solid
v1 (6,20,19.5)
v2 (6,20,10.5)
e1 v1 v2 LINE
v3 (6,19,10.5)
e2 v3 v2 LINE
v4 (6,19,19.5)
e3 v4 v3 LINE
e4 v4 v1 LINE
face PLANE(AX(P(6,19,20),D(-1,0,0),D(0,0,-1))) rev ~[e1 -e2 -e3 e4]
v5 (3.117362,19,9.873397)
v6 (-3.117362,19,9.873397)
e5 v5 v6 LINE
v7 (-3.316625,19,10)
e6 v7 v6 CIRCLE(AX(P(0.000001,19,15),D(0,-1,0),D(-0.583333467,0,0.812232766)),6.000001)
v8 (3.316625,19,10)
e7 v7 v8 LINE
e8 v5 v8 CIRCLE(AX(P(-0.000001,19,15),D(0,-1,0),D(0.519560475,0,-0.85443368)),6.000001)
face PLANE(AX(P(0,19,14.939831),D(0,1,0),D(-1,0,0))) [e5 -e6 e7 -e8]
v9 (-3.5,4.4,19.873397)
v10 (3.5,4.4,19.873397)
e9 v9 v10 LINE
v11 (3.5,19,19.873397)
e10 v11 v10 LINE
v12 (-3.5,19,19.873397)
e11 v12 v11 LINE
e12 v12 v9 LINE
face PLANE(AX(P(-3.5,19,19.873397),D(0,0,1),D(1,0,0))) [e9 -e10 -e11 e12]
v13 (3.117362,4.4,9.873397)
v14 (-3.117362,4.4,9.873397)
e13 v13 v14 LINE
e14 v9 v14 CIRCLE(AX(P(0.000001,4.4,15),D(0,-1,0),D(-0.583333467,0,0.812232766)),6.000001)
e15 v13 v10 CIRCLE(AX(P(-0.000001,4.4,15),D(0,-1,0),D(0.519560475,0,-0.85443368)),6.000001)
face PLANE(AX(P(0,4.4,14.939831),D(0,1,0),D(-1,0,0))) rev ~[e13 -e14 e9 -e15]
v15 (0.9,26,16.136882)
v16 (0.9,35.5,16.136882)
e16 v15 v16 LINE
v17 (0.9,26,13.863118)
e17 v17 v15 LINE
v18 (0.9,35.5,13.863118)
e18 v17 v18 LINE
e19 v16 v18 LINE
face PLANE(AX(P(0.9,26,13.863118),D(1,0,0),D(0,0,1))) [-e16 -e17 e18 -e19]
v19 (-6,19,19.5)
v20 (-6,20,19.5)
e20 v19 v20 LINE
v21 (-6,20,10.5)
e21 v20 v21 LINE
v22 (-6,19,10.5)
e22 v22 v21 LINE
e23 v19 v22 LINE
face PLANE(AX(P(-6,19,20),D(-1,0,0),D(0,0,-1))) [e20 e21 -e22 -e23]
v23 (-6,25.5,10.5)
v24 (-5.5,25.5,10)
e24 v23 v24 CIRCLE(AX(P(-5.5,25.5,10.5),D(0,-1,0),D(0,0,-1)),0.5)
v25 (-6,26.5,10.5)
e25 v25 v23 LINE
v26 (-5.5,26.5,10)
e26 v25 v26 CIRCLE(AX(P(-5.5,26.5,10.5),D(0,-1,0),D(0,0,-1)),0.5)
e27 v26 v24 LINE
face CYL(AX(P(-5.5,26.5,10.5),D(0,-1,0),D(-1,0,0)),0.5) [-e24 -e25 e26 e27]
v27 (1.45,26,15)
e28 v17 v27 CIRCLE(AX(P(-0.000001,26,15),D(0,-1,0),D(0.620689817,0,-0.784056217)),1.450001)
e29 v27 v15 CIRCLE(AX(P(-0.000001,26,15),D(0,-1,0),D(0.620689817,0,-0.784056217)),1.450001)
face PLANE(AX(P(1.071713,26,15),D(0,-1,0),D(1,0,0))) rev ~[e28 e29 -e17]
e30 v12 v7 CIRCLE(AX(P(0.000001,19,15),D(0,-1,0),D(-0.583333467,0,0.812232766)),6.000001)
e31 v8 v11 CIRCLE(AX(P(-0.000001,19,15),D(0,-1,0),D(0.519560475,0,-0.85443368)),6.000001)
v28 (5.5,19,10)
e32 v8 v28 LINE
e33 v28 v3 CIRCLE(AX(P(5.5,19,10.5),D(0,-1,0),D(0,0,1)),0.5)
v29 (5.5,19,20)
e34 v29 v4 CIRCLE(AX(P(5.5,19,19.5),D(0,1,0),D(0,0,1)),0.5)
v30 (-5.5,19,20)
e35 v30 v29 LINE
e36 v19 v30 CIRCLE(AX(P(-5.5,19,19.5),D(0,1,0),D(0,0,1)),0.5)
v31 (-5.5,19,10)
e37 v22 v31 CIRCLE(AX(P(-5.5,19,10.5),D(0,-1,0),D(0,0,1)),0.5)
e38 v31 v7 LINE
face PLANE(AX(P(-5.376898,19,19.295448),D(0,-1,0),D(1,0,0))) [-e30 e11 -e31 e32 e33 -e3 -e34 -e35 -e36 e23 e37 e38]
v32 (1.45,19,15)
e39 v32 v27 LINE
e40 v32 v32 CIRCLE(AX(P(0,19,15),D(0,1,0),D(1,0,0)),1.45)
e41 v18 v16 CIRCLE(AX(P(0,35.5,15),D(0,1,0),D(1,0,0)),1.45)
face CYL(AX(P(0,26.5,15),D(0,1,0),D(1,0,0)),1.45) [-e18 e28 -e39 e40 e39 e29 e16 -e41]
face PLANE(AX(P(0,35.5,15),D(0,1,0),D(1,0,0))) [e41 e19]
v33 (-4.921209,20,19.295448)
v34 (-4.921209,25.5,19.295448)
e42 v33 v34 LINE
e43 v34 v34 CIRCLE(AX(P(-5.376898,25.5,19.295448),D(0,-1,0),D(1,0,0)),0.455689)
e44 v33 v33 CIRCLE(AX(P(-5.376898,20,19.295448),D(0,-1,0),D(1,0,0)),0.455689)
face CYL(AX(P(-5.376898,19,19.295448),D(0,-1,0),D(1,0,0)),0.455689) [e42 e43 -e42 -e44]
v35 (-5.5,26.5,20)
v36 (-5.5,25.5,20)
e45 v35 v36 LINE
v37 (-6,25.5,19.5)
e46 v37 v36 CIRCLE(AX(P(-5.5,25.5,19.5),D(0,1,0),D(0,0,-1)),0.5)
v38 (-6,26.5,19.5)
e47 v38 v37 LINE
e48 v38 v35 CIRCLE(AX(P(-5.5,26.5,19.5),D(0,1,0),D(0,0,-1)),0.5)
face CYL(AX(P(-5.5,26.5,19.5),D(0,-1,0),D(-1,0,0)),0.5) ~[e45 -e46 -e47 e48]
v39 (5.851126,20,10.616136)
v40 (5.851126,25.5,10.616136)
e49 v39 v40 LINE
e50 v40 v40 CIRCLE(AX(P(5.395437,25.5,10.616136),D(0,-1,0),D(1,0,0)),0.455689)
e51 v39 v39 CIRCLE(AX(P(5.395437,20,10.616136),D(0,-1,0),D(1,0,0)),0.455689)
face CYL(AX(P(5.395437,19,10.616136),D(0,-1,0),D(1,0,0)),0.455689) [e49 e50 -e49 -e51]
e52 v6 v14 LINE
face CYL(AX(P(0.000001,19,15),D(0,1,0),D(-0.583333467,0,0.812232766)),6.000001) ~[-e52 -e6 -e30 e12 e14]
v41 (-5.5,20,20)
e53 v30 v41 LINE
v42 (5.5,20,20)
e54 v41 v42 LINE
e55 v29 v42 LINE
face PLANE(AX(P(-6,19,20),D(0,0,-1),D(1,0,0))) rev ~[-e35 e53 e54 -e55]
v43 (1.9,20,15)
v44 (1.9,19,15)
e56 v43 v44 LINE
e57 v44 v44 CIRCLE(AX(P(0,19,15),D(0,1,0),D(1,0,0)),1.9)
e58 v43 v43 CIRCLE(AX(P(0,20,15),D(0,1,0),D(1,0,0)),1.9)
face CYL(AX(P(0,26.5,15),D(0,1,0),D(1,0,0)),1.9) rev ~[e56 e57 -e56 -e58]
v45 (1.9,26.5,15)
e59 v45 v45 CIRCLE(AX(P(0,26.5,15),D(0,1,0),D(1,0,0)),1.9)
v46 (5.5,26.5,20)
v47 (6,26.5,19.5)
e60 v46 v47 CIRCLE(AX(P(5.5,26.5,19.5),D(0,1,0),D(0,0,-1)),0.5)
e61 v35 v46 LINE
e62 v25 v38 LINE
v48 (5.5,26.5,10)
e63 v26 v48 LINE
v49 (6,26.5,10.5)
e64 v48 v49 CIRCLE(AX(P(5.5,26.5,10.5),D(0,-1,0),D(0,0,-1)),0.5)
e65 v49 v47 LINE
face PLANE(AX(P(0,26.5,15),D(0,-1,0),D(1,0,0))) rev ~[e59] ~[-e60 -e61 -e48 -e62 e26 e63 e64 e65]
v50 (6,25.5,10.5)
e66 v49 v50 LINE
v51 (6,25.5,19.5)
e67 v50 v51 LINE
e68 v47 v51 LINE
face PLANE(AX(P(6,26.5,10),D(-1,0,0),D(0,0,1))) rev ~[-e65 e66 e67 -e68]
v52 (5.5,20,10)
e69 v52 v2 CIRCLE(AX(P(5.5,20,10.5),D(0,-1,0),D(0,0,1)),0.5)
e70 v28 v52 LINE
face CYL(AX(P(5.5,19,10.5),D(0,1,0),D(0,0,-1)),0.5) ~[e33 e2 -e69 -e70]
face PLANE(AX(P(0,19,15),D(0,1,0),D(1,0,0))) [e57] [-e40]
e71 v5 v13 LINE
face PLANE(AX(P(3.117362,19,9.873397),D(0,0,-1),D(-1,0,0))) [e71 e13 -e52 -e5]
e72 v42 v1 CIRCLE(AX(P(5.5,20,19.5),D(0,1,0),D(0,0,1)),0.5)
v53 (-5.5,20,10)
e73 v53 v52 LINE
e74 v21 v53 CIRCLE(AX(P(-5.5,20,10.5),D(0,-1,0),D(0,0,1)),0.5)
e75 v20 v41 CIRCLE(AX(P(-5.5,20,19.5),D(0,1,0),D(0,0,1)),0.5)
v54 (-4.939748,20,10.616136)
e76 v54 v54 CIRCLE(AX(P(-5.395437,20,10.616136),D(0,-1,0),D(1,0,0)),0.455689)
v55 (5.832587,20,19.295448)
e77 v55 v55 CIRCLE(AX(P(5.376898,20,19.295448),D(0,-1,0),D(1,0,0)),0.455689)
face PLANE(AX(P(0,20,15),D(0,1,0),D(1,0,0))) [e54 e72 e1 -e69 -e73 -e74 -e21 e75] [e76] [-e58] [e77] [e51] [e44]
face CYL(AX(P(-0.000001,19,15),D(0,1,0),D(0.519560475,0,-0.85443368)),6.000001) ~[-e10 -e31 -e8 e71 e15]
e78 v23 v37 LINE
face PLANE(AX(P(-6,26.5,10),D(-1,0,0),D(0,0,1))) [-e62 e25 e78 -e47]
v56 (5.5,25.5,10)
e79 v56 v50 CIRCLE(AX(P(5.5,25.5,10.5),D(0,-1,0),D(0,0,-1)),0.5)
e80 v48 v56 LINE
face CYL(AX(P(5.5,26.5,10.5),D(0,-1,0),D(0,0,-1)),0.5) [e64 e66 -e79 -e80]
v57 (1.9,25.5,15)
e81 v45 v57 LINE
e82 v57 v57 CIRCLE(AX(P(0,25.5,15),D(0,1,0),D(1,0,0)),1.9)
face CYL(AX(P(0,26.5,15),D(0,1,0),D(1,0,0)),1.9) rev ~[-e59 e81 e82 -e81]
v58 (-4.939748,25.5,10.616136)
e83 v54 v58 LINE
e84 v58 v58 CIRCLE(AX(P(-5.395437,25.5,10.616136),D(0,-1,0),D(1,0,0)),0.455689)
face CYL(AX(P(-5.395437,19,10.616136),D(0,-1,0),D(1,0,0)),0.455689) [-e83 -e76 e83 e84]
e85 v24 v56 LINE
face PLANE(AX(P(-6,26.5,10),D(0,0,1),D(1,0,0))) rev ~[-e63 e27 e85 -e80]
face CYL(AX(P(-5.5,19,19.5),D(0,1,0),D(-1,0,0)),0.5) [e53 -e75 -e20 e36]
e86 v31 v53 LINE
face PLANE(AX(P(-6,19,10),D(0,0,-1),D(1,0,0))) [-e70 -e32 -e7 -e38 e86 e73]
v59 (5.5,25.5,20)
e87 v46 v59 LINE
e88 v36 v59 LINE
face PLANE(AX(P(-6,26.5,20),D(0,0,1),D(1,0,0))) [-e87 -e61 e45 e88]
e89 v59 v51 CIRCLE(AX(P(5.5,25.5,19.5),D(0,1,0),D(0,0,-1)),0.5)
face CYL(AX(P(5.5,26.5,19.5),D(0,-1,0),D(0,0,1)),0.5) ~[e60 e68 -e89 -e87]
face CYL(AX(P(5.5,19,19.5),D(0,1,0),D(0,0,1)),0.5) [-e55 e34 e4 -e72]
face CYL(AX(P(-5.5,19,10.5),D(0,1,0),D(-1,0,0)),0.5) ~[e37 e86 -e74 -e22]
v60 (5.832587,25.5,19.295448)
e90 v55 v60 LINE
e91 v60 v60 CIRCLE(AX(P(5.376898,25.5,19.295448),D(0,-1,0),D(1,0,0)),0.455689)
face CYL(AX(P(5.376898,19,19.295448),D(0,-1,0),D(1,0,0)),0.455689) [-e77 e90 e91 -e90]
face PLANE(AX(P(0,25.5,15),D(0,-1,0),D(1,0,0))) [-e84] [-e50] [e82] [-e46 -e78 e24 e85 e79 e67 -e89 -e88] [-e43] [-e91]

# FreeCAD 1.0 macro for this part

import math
import FreeCAD as App
import Part
import Sketcher
from FreeCAD import Vector


def edges_at(feature, points):
    """Names of the edges that pass closest to the given points."""
    edges = feature.Shape.Edges
    near = lambda p: min(range(len(edges)), key=lambda i: edges[i].distToShape(Part.Vertex(*p))[0])
    return sorted({f"Edge{near(p) + 1}" for p in points})

doc = App.newDocument("Part")
params = doc.addObject("Spreadsheet::Sheet", "Params")
for row, (alias, value) in enumerate([
    ("sketch1_radius", "6.000001 mm"),
    ("sketch1_width", "7 mm"),
    ("pad1_length", "14.6 mm"),
    ("sketch2_width", "12 mm"),
    ("sketch2_height", "10 mm"),
    ("pad2_length", "1 mm"),
    ("fillet_radius", "0.5 mm"),
    ("pad3_length", "7.5 mm"),
    ("sketch4_width", "12 mm"),
    ("sketch4_height", "10 mm"),
    ("pad4_length", "1 mm"),
    ("sketch5_diameter", "3.8 mm"),
    ("pocket1_length", "7.5 mm"),
    ("sketch6_diameter", "2.9 mm"),
    ("pad5_length", "18 mm"),
    ("fillet2_radius", "0.5 mm"),
    ("sketch7_radius", "1.450001 mm"),
    ("pocket2_length", "10 mm"),
], start=1):
    params.set(f"A{row}", alias)
    params.set(f"B{row}", "=" + value)
    params.setAlias(f"B{row}", alias)

body = doc.addObject("PartDesign::Body", "Body")

sketch1 = body.newObject("Sketcher::SketchObject", "Sketch")
sketch1.AttachmentSupport = (doc.getObject("XZ_Plane"), [""])
sketch1.MapMode = "FlatFace"
sketch1.addGeometry(Part.LineSegment(Vector(4, 20, 0), Vector(-4, 20, 0)), False)
sketch1.addGeometry(Part.ArcOfCircle(Part.Circle(Vector(0, 15, 0), Vector(0, 0, 1), 6), math.radians(126), math.radians(239)), False)
sketch1.addGeometry(Part.LineSegment(Vector(-3, 10, 0), Vector(3, 10, 0)), False)
sketch1.addGeometry(Part.ArcOfCircle(Part.Circle(Vector(0, 15, 0), Vector(0, 0, 1), 6), math.radians(-59), math.radians(54)), False)
sketch1.addConstraint(Sketcher.Constraint("Coincident", 0, 2, 1, 1))
sketch1.addConstraint(Sketcher.Constraint("Coincident", 1, 2, 2, 1))
sketch1.addConstraint(Sketcher.Constraint("Coincident", 2, 2, 3, 1))
sketch1.addConstraint(Sketcher.Constraint("Coincident", 3, 2, 0, 1))
sketch1.addConstraint(Sketcher.Constraint("Horizontal", 0))
sketch1.addConstraint(Sketcher.Constraint("Horizontal", 2))
sketch1.addConstraint(Sketcher.Constraint("Coincident", 3, 3, 1, 3))
sketch1.addConstraint(Sketcher.Constraint("Equal", 1, 3))
sketch1.addConstraint(Sketcher.Constraint("PointOnObject", 1, 3, -2))
sketch1.addConstraint(Sketcher.Constraint("Radius", 1, 6.000001))
sketch1.addConstraint(Sketcher.Constraint("DistanceX", 0, 2, 0, 1, 7.0))
sketch1.addConstraint(Sketcher.Constraint("DistanceY", -1, 1, 1, 3, 15.0))
sketch1.addConstraint(Sketcher.Constraint("DistanceY", 1, 2, 0, 2, 10.0))
sketch1.setExpression("Constraints[9]", "Params.sketch1_radius")
sketch1.setExpression("Constraints[10]", "Params.sketch1_width")
pad1 = body.newObject("PartDesign::Pad", "Pad")
pad1.Profile = sketch1
pad1.setExpression("Length", "Params.pad1_length")

sketch2 = body.newObject("Sketcher::SketchObject", "Sketch001")
sketch2.AttachmentSupport = (doc.getObject("XZ_Plane"), [""])
sketch2.MapMode = "FlatFace"
sketch2.addGeometry(Part.LineSegment(Vector(-6, 10, 0), Vector(-6, 20, 0)), False)
sketch2.addGeometry(Part.LineSegment(Vector(-6, 20, 0), Vector(6, 20, 0)), False)
sketch2.addGeometry(Part.LineSegment(Vector(6, 20, 0), Vector(6, 10, 0)), False)
sketch2.addGeometry(Part.LineSegment(Vector(6, 10, 0), Vector(-6, 10, 0)), False)
sketch2.addConstraint(Sketcher.Constraint("Coincident", 0, 2, 1, 1))
sketch2.addConstraint(Sketcher.Constraint("Coincident", 1, 2, 2, 1))
sketch2.addConstraint(Sketcher.Constraint("Coincident", 2, 2, 3, 1))
sketch2.addConstraint(Sketcher.Constraint("Coincident", 3, 2, 0, 1))
sketch2.addConstraint(Sketcher.Constraint("Vertical", 0))
sketch2.addConstraint(Sketcher.Constraint("Horizontal", 1))
sketch2.addConstraint(Sketcher.Constraint("Vertical", 2))
sketch2.addConstraint(Sketcher.Constraint("Horizontal", 3))
sketch2.addConstraint(Sketcher.Constraint("DistanceX", 1, 1, 1, 2, 12.0))
sketch2.addConstraint(Sketcher.Constraint("DistanceY", 0, 1, 0, 2, 10.0))
sketch2.addConstraint(Sketcher.Constraint("DistanceX", 0, 2, -1, 1, 6.0))
sketch2.addConstraint(Sketcher.Constraint("DistanceY", -1, 1, 0, 2, 20.0))
sketch2.setExpression("Constraints[8]", "Params.sketch2_width")
sketch2.setExpression("Constraints[9]", "Params.sketch2_height")
pad2 = body.newObject("PartDesign::Pad", "Pad001")
pad2.Profile = sketch2
pad2.setExpression("Length", "Params.pad2_length")
pad2.Reversed = True
doc.recompute()

fillet = body.newObject("PartDesign::Fillet", "Fillet")
fillet.Base = (pad2, edges_at(pad2, [
    (6, 0.5, 20),
    (6, 0.5, 10),
    (-6, 0.5, 10),
    (-6, 0.5, 20),
]))
fillet.setExpression("Radius", "Params.fillet_radius")

sketch3 = body.newObject("Sketcher::SketchObject", "Sketch002")
sketch3.AttachmentSupport = (doc.getObject("XZ_Plane"), [""])
sketch3.MapMode = "FlatFace"
sketch3.addGeometry(Part.Circle(Vector(-5.38, 19.3, 0), Vector(0, 0, 1), 0.46), False)
sketch3.addGeometry(Part.Circle(Vector(-5.4, 10.62, 0), Vector(0, 0, 1), 0.46), False)
sketch3.addGeometry(Part.Circle(Vector(5.4, 10.62, 0), Vector(0, 0, 1), 0.46), False)
sketch3.addGeometry(Part.Circle(Vector(5.38, 19.3, 0), Vector(0, 0, 1), 0.46), False)
sketch3.addConstraint(Sketcher.Constraint("Equal", 0, 1))
sketch3.addConstraint(Sketcher.Constraint("Equal", 1, 2))
sketch3.addConstraint(Sketcher.Constraint("Equal", 2, 3))
sketch3.addConstraint(Sketcher.Constraint("Symmetric", 1, 3, 2, 3, -2))
sketch3.addConstraint(Sketcher.Constraint("Symmetric", 0, 3, 3, 3, -2))
sketch3.addConstraint(Sketcher.Constraint("Diameter", 0, 0.911378))
sketch3.addConstraint(Sketcher.Constraint("DistanceY", -1, 1, 0, 3, 19.295448))
sketch3.addConstraint(Sketcher.Constraint("DistanceX", 1, 3, 0, 3, 0.018539))
sketch3.addConstraint(Sketcher.Constraint("DistanceX", 0, 3, -1, 1, 5.376898))
sketch3.addConstraint(Sketcher.Constraint("DistanceY", -1, 1, 1, 3, 10.616136))
pad3 = body.newObject("PartDesign::Pad", "Pad002")
pad3.Profile = sketch3
pad3.setExpression("Length", "Params.pad3_length")
pad3.Reversed = True

sketch4 = body.newObject("Sketcher::SketchObject", "Sketch003")
sketch4.AttachmentSupport = (doc.getObject("XZ_Plane"), [""])
sketch4.MapMode = "FlatFace"
sketch4.AttachmentOffset = App.Placement(Vector(0, 0, -7.5), App.Rotation())
sketch4.addGeometry(Part.LineSegment(Vector(-6, 20, 0), Vector(-6, 10, 0)), False)
sketch4.addGeometry(Part.LineSegment(Vector(-6, 10, 0), Vector(6, 10, 0)), False)
sketch4.addGeometry(Part.LineSegment(Vector(6, 10, 0), Vector(6, 20, 0)), False)
sketch4.addGeometry(Part.LineSegment(Vector(6, 20, 0), Vector(-6, 20, 0)), False)
sketch4.addConstraint(Sketcher.Constraint("Coincident", 0, 2, 1, 1))
sketch4.addConstraint(Sketcher.Constraint("Coincident", 1, 2, 2, 1))
sketch4.addConstraint(Sketcher.Constraint("Coincident", 2, 2, 3, 1))
sketch4.addConstraint(Sketcher.Constraint("Coincident", 3, 2, 0, 1))
sketch4.addConstraint(Sketcher.Constraint("Vertical", 0))
sketch4.addConstraint(Sketcher.Constraint("Horizontal", 1))
sketch4.addConstraint(Sketcher.Constraint("Vertical", 2))
sketch4.addConstraint(Sketcher.Constraint("Horizontal", 3))
sketch4.addConstraint(Sketcher.Constraint("DistanceX", 1, 1, 1, 2, 12.0))
sketch4.addConstraint(Sketcher.Constraint("DistanceY", 0, 2, 0, 1, 10.0))
sketch4.addConstraint(Sketcher.Constraint("DistanceX", 0, 2, -1, 1, 6.0))
sketch4.addConstraint(Sketcher.Constraint("DistanceY", -1, 1, 0, 2, 10.0))
sketch4.setExpression("Constraints[8]", "Params.sketch4_width")
sketch4.setExpression("Constraints[9]", "Params.sketch4_height")
pad4 = body.newObject("PartDesign::Pad", "Pad003")
pad4.Profile = sketch4
pad4.setExpression("Length", "Params.pad4_length")

sketch5 = body.newObject("Sketcher::SketchObject", "Sketch004")
sketch5.AttachmentSupport = (doc.getObject("XZ_Plane"), [""])
sketch5.MapMode = "FlatFace"
sketch5.AttachmentOffset = App.Placement(Vector(0, 0, -7.5), App.Rotation())
sketch5.addGeometry(Part.Circle(Vector(0, 15, 0), Vector(0, 0, 1), 1.9), False)
sketch5.addConstraint(Sketcher.Constraint("PointOnObject", 0, 3, -2))
sketch5.addConstraint(Sketcher.Constraint("Diameter", 0, 3.8))
sketch5.addConstraint(Sketcher.Constraint("DistanceY", -1, 1, 0, 3, 15.0))
sketch5.setExpression("Constraints[1]", "Params.sketch5_diameter")
pocket1 = body.newObject("PartDesign::Pocket", "Pocket")
pocket1.Profile = sketch5
pocket1.setExpression("Length", "Params.pocket1_length")
pocket1.Reversed = True

sketch6 = body.newObject("Sketcher::SketchObject", "Sketch005")
sketch6.AttachmentSupport = (doc.getObject("XZ_Plane"), [""])
sketch6.MapMode = "FlatFace"
sketch6.AttachmentOffset = App.Placement(Vector(0, 0, -7.5), App.Rotation())
sketch6.addGeometry(Part.Circle(Vector(0, 15, 0), Vector(0, 0, 1), 1.4), False)
sketch6.addConstraint(Sketcher.Constraint("PointOnObject", 0, 3, -2))
sketch6.addConstraint(Sketcher.Constraint("Diameter", 0, 2.9))
sketch6.addConstraint(Sketcher.Constraint("DistanceY", -1, 1, 0, 3, 15.0))
sketch6.setExpression("Constraints[1]", "Params.sketch6_diameter")
pad5 = body.newObject("PartDesign::Pad", "Pad004")
pad5.Profile = sketch6
pad5.setExpression("Length", "Params.pad5_length")
pad5.Midplane = True
doc.recompute()

fillet2 = body.newObject("PartDesign::Fillet", "Fillet001")
fillet2.Base = (pad5, edges_at(pad5, [
    (-6, 7, 20),
    (-6, 7, 10),
    (6, 7, 10),
    (6, 7, 20),
]))
fillet2.setExpression("Radius", "Params.fillet2_radius")

sketch7 = body.newObject("Sketcher::SketchObject", "Sketch006")
sketch7.AttachmentSupport = (doc.getObject("XZ_Plane"), [""])
sketch7.MapMode = "FlatFace"
sketch7.AttachmentOffset = App.Placement(Vector(0, 0, -7), App.Rotation())
sketch7.addGeometry(Part.ArcOfCircle(Part.Circle(Vector(0, 15, 0), Vector(0, 0, 1), 1.5), math.radians(-52), math.radians(52)), False)
sketch7.addGeometry(Part.LineSegment(Vector(0.9, 16.1, 0), Vector(0.9, 13.9, 0)), False)
sketch7.addConstraint(Sketcher.Constraint("Coincident", 0, 1, 1, 2))
sketch7.addConstraint(Sketcher.Constraint("Coincident", 1, 1, 0, 2))
sketch7.addConstraint(Sketcher.Constraint("Vertical", 1))
sketch7.addConstraint(Sketcher.Constraint("PointOnObject", 0, 3, -2))
sketch7.addConstraint(Sketcher.Constraint("Radius", 0, 1.450001))
sketch7.addConstraint(Sketcher.Constraint("DistanceY", -1, 1, 0, 3, 15.0))
sketch7.addConstraint(Sketcher.Constraint("DistanceX", -1, 1, 0, 1, 0.9))
sketch7.setExpression("Constraints[4]", "Params.sketch7_radius")
pocket2 = body.newObject("PartDesign::Pocket", "Pocket001")
pocket2.Profile = sketch7
pocket2.setExpression("Length", "Params.pocket2_length")
body2 = doc.addObject("PartDesign::Body", "Body001")
doc.recompute()

body.Placement = App.Placement(Vector(0, 19, 0), App.Rotation(Vector(0, 0, 1), 0))
boolean = body2.newObject("PartDesign::Boolean", "Boolean")
boolean.Type = "Fuse"
boolean.addObjects([body])

doc.recompute()
